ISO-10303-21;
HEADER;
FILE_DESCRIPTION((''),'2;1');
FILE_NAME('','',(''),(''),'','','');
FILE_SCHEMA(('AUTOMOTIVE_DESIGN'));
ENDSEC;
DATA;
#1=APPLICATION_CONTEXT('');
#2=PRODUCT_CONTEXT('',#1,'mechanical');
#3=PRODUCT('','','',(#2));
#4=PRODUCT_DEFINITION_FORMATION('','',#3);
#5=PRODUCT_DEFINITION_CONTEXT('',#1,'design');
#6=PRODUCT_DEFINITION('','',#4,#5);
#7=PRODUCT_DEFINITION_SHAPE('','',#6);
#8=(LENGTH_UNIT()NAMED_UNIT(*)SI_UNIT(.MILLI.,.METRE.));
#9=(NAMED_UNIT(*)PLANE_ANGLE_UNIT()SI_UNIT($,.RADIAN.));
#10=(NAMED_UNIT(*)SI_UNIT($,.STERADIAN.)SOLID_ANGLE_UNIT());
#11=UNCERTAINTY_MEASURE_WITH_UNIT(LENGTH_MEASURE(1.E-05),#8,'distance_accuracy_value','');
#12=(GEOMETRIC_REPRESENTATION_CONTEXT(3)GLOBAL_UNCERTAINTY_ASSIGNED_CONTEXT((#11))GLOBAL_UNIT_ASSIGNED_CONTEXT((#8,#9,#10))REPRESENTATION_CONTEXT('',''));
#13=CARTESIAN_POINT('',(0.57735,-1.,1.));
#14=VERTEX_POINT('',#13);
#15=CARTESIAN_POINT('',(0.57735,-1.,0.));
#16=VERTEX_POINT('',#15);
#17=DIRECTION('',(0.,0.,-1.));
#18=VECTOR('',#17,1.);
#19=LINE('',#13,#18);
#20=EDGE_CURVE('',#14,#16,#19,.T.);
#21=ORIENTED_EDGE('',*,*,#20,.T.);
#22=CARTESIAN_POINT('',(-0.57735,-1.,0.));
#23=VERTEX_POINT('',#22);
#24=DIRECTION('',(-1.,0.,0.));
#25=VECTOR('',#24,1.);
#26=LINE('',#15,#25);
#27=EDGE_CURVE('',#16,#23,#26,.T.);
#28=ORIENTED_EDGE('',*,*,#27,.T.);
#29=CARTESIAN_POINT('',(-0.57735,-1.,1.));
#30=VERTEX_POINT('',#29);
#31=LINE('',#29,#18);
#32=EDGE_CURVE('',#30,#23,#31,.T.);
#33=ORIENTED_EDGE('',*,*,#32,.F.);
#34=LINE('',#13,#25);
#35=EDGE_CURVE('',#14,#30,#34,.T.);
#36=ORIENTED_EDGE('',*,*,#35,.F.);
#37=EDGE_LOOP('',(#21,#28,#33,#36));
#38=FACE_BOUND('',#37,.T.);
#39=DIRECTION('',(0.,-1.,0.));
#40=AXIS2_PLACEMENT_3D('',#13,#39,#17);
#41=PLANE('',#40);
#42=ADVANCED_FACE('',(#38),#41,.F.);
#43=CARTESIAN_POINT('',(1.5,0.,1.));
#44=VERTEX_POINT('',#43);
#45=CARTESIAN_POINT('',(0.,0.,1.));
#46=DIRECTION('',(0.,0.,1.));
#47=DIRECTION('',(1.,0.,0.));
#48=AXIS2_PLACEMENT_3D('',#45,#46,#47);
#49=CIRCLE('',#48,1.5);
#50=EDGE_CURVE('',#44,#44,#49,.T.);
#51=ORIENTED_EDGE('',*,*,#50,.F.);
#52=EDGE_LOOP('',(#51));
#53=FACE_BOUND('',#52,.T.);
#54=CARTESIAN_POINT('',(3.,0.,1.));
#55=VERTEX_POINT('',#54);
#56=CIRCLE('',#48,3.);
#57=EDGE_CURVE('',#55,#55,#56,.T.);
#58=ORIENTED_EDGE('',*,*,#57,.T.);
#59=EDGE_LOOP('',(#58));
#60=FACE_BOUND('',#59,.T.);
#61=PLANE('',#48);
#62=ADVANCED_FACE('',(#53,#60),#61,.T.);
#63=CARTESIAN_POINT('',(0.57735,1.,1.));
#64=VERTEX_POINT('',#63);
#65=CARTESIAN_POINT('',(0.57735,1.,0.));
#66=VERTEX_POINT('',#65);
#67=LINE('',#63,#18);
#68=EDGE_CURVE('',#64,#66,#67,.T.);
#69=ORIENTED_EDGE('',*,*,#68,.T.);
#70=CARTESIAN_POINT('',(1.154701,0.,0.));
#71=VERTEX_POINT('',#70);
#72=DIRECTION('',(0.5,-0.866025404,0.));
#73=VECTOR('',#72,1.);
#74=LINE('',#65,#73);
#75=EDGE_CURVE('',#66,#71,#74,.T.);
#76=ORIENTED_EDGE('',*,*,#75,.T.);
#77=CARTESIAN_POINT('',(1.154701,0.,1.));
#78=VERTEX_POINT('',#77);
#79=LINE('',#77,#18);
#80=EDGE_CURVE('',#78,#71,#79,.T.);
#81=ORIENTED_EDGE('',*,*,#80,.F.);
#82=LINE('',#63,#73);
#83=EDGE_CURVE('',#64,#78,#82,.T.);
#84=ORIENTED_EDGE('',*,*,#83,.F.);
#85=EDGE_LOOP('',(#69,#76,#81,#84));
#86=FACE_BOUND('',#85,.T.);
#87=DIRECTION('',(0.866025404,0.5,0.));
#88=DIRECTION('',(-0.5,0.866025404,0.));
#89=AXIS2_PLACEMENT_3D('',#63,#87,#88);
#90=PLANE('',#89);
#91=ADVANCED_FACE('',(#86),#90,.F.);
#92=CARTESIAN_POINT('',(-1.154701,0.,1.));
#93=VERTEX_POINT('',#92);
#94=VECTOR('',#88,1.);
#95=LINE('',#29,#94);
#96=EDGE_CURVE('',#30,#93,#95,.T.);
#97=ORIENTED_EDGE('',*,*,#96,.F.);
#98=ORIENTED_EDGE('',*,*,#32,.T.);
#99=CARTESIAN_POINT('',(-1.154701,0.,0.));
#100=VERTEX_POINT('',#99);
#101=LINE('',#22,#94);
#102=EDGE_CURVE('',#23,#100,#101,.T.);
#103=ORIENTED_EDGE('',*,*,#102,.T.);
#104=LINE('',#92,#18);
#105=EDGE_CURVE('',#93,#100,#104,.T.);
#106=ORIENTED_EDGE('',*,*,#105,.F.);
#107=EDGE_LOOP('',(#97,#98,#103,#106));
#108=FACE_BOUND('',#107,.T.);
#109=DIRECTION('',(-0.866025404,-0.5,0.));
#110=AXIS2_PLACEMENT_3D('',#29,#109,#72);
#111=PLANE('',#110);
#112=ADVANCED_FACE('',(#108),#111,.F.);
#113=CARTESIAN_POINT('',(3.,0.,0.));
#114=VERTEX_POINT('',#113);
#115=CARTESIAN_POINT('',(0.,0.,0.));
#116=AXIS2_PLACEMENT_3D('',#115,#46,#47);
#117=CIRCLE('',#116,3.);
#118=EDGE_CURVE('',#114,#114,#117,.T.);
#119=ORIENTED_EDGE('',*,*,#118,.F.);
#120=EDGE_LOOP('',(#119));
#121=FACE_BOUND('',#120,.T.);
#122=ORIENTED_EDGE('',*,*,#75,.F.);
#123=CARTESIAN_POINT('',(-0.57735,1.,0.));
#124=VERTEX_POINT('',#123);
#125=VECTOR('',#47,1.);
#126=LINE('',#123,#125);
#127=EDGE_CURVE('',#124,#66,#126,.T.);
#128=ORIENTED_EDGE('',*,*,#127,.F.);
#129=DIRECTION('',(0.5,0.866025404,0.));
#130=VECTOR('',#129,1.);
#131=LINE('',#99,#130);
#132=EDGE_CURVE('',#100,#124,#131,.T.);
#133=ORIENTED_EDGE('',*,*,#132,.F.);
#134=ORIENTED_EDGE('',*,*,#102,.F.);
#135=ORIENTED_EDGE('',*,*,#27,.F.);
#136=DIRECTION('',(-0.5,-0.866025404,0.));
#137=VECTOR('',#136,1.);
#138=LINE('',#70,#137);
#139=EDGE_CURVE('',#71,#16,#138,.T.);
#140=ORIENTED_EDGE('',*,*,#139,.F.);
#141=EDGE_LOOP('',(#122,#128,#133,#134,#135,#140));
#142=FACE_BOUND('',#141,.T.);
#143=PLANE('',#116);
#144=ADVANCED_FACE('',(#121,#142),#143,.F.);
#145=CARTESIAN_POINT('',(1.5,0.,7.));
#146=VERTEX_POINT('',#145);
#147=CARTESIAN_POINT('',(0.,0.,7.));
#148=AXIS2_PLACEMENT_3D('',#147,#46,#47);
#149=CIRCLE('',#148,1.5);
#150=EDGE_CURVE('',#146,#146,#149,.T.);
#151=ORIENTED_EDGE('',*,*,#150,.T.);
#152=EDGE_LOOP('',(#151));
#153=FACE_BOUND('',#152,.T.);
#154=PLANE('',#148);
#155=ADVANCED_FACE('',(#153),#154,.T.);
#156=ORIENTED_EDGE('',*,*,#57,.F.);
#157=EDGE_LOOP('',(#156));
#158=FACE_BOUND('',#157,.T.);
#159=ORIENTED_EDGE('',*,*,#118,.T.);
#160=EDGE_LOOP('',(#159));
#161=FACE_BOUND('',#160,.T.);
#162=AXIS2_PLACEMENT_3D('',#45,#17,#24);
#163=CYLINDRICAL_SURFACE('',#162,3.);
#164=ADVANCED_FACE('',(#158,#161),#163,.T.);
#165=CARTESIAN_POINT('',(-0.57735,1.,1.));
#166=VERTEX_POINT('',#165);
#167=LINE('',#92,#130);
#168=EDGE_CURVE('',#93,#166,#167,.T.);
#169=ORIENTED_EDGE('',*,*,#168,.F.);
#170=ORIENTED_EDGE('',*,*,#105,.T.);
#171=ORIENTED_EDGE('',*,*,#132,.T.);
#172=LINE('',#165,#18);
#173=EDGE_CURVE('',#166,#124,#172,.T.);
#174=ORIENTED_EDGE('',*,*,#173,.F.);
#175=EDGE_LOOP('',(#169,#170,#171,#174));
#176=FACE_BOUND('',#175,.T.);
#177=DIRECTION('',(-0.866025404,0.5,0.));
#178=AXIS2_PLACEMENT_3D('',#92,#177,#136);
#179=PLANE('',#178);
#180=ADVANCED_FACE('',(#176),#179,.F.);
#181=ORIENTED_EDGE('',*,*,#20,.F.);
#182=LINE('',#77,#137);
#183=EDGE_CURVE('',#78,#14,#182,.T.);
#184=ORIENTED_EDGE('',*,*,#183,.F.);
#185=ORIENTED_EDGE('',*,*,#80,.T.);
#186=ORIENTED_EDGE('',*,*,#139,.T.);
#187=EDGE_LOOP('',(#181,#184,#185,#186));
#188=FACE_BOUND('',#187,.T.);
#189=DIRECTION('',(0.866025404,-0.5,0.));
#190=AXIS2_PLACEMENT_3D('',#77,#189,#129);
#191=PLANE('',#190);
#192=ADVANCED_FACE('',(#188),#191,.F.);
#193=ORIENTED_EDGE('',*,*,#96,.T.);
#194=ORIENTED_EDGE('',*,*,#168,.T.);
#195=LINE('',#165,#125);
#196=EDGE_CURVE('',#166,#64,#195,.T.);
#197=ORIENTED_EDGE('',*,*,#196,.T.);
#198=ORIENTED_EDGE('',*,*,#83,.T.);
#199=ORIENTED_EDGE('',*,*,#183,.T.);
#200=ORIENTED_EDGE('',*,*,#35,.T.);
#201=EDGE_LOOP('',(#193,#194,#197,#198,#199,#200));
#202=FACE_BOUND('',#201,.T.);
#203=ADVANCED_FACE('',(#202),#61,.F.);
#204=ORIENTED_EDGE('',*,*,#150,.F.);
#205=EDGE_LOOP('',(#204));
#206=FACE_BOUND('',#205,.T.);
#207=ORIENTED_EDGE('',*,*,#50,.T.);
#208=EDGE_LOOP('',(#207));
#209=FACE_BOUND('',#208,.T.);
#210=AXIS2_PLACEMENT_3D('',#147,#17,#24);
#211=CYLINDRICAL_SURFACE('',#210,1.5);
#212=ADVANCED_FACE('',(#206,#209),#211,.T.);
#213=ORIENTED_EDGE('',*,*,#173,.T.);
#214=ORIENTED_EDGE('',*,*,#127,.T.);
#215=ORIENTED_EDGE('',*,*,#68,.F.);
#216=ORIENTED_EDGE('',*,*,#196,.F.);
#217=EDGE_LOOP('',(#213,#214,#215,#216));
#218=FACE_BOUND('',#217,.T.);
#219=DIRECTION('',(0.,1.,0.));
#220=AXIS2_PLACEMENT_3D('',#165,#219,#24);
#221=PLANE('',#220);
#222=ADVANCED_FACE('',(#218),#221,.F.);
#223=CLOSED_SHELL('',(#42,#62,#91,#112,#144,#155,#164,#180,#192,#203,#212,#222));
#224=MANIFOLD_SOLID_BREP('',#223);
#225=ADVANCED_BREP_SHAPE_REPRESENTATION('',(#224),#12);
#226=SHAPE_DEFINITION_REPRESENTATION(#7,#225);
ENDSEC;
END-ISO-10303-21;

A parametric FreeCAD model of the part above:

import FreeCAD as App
import Part
import Sketcher
from FreeCAD import Vector
Q = App.Units.Quantity


def add_polygon(sketch, points):
    """Adds a closed chain of lines whose ends are joined by coincident constraints."""
    first, n = sketch.GeometryCount, len(points)
    for a, b in zip(points, points[1:] + points[:1]):
        sketch.addGeometry(Part.LineSegment(App.Vector(*a, 0), App.Vector(*b, 0)), False)
    for i in range(n):
        sketch.addConstraint(Sketcher.Constraint("Coincident", first + i, 2, first + (i + 1) % n, 1))

doc = App.newDocument("Part")
params = doc.addObject("Spreadsheet::Sheet", "Params")
for row, (alias, value) in enumerate([
    ("sketch1_diameter", "6 mm"),
    ("pad1_length", "1 mm"),
    ("pocket1_length", "1 mm"),
    ("sketch3_diameter", "3 mm"),
    ("pad2_length", "6 mm"),
], start=1):
    params.set(f"A{row}", alias)
    params.set(f"B{row}", "=" + value)
    params.setAlias(f"B{row}", alias)

body = doc.addObject("PartDesign::Body", "Body")

# Sketch on XY plane
sketch1 = doc.addObject("Sketcher::SketchObject", "Sketch")
body.addObject(sketch1)
sketch1.AttachmentSupport = (doc.XY_Plane, [""])
sketch1.MapMode = "FlatFace"
sketch1.addGeometry(Part.Circle(Vector(0, 0, 0), Vector(0, 0, 1), 3), False)
sketch1.addConstraint(Sketcher.Constraint("Coincident", 0, 3, -1, 1))
sketch1.addConstraint(Sketcher.Constraint("Diameter", 0, 6.0))
sketch1.setExpression("Constraints[1]", "Params.sketch1_diameter")
pad1 = doc.addObject("PartDesign::Pad", "Pad")
body.addObject(pad1)
pad1.Profile = sketch1
pad1.setExpression("Length", "Params.pad1_length")

# Sketch on XY plane
sketch2 = doc.addObject("Sketcher::SketchObject", "Sketch001")
body.addObject(sketch2)
sketch2.AttachmentSupport = (doc.XY_Plane, [""])
sketch2.MapMode = "FlatFace"
add_polygon(sketch2, [(-1.154701, 0), (-0.57735, 1), (0.57735, 1), (1.154701, 0), (0.57735, -1), (-0.57735, -1)])  # lines 0-5
sketch2.addConstraint(Sketcher.Constraint("Horizontal", 1))
sketch2.addConstraint(Sketcher.Constraint("Horizontal", 4))
sketch2.addConstraint(Sketcher.Constraint("Symmetric", 0, 2, 3, 2, -1, 1))
sketch2.addConstraint(Sketcher.Constraint("Symmetric", 2, 2, 5, 2, -1, 1))
sketch2.addConstraint(Sketcher.Constraint("PointOnObject", 2, 2, -1))
sketch2.addConstraint(Sketcher.Constraint("Parallel", 2, 5))
sketch2.addConstraint(Sketcher.Constraint("Vertical", 1, 2, 3, 2))
sketch2.addConstraint(Sketcher.Constraint("Angle", 0, Q("60 deg")))
sketch2.addConstraint(Sketcher.Constraint("DistanceY", -1, 1, 0, 2, 1.0))
sketch2.addConstraint(Sketcher.Constraint("DistanceX", 1, 1, 1, 2, 1.154701))
pocket1 = doc.addObject("PartDesign::Pocket", "Pocket")
body.addObject(pocket1)
pocket1.Profile = sketch2
pocket1.setExpression("Length", "Params.pocket1_length")
pocket1.Reversed = True

# Sketch on XY plane
sketch3 = doc.addObject("Sketcher::SketchObject", "Sketch002")
body.addObject(sketch3)
sketch3.AttachmentSupport = (doc.XY_Plane, [""])
sketch3.MapMode = "FlatFace"
sketch3.AttachmentOffset = App.Placement(Vector(0, 0, 1), App.Rotation())
sketch3.addGeometry(Part.Circle(Vector(0, 0, 0), Vector(0, 0, 1), 1.5), False)
sketch3.addConstraint(Sketcher.Constraint("Coincident", 0, 3, -1, 1))
sketch3.addConstraint(Sketcher.Constraint("Diameter", 0, 3.0))
sketch3.setExpression("Constraints[1]", "Params.sketch3_diameter")
pad2 = doc.addObject("PartDesign::Pad", "Pad001")
body.addObject(pad2)
pad2.Profile = sketch3
pad2.setExpression("Length", "Params.pad2_length")

doc.recompute()
